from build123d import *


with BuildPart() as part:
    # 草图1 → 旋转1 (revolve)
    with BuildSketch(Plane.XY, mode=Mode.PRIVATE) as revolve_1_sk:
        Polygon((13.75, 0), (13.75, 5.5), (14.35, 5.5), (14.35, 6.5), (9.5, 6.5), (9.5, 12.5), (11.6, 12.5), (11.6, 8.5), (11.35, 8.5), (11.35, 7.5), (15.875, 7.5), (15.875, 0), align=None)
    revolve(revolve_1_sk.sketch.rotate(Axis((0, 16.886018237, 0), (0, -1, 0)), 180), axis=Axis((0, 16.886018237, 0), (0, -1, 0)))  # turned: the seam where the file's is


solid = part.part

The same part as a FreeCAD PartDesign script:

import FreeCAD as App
import Part
import Sketcher
from FreeCAD import Vector
Q = App.Units.Quantity


def add_polygon(sketch, points):
    """Adds a closed chain of lines whose ends are joined by coincident constraints."""
    first, n = sketch.GeometryCount, len(points)
    for a, b in zip(points, points[1:] + points[:1]):
        sketch.addGeometry(Part.LineSegment(App.Vector(*a, 0), App.Vector(*b, 0)), False)
    for i in range(n):
        sketch.addConstraint(Sketcher.Constraint("Coincident", first + i, 2, first + (i + 1) % n, 1))

doc = App.newDocument("Part")
params = doc.addObject("Spreadsheet::Sheet", "Params")
for row, (alias, value) in enumerate([
    ("sketch1_height", "1 mm"),
    ("sketch1_height2", "4 mm"),
    ("sketch1_height3", "6 mm"),
    ("sketch1_width", "2.1 mm"),
    ("sketch1_width2", "0.6 mm"),
    ("revolution_angle", "360 deg"),
], start=1):
    params.set(f"A{row}", alias)
    params.set(f"B{row}", "=" + value)
    params.setAlias(f"B{row}", alias)

body = doc.addObject("PartDesign::Body", "Body")

sketch1 = doc.addObject("Sketcher::SketchObject", "Sketch")
body.addObject(sketch1)
sketch1.AttachmentSupport = (doc.XY_Plane, [""])
sketch1.MapMode = "FlatFace"
add_polygon(sketch1, [(13.75, 5.5), (13.75, 0), (15.88, 0), (15.88, 7.5), (11.35, 7.5), (11.35, 8.5), (11.6, 8.5), (11.6, 12.5), (9.5, 12.5), (9.5, 6.5), (14.35, 6.5), (14.35, 5.5)])
sketch1.addConstraint([
    Sketcher.Constraint("Vertical", 0),
    Sketcher.Constraint("Horizontal", 1),
    Sketcher.Constraint("Vertical", 2),
    Sketcher.Constraint("Horizontal", 3),
    Sketcher.Constraint("Vertical", 4),
    Sketcher.Constraint("Horizontal", 5),
    Sketcher.Constraint("Vertical", 6),
    Sketcher.Constraint("Horizontal", 7),
    Sketcher.Constraint("Vertical", 8),
    Sketcher.Constraint("Horizontal", 9),
    Sketcher.Constraint("Vertical", 10),
    Sketcher.Constraint("Horizontal", 11),
    Sketcher.Constraint("PointOnObject", 0, 2, -1),
    Sketcher.Constraint("Equal", 4, 10),
    Sketcher.Constraint("DistanceY", 4, 1, 4, 2, Q("1 mm")),
    Sketcher.Constraint("DistanceY", 6, 1, 6, 2, Q("4 mm")),
    Sketcher.Constraint("DistanceY", 8, 2, 8, 1, Q("6 mm")),
    Sketcher.Constraint("DistanceX", 7, 2, 7, 1, Q("2.1 mm")),
    Sketcher.Constraint("DistanceX", 11, 2, 11, 1, Q("0.6 mm")),
    Sketcher.Constraint("DistanceY", 0, 2, 0, 1, Q("5.5 mm")),
    Sketcher.Constraint("DistanceX", 3, 2, 9, 2, Q("3 mm")),
    Sketcher.Constraint("DistanceX", 5, 1, 5, 2, Q("0.25 mm")),
    Sketcher.Constraint("DistanceX", -1, 1, 5, 2, Q("11.6 mm")),
    Sketcher.Constraint("DistanceX", 1, 1, 1, 2, Q("2.125 mm")),
])
sketch1.setExpression("Constraints[26]", "Params.sketch1_height")
sketch1.setExpression("Constraints[27]", "Params.sketch1_height2")
sketch1.setExpression("Constraints[28]", "Params.sketch1_height3")
sketch1.setExpression("Constraints[29]", "Params.sketch1_width")
sketch1.setExpression("Constraints[30]", "Params.sketch1_width2")
revolution = doc.addObject("PartDesign::Revolution", "Revolution")
body.addObject(revolution)
revolution.Profile = sketch1
revolution.ReferenceAxis = (sketch1, ["V_Axis"])
revolution.setExpression("Angle", "Params.revolution_angle")

doc.recompute()
